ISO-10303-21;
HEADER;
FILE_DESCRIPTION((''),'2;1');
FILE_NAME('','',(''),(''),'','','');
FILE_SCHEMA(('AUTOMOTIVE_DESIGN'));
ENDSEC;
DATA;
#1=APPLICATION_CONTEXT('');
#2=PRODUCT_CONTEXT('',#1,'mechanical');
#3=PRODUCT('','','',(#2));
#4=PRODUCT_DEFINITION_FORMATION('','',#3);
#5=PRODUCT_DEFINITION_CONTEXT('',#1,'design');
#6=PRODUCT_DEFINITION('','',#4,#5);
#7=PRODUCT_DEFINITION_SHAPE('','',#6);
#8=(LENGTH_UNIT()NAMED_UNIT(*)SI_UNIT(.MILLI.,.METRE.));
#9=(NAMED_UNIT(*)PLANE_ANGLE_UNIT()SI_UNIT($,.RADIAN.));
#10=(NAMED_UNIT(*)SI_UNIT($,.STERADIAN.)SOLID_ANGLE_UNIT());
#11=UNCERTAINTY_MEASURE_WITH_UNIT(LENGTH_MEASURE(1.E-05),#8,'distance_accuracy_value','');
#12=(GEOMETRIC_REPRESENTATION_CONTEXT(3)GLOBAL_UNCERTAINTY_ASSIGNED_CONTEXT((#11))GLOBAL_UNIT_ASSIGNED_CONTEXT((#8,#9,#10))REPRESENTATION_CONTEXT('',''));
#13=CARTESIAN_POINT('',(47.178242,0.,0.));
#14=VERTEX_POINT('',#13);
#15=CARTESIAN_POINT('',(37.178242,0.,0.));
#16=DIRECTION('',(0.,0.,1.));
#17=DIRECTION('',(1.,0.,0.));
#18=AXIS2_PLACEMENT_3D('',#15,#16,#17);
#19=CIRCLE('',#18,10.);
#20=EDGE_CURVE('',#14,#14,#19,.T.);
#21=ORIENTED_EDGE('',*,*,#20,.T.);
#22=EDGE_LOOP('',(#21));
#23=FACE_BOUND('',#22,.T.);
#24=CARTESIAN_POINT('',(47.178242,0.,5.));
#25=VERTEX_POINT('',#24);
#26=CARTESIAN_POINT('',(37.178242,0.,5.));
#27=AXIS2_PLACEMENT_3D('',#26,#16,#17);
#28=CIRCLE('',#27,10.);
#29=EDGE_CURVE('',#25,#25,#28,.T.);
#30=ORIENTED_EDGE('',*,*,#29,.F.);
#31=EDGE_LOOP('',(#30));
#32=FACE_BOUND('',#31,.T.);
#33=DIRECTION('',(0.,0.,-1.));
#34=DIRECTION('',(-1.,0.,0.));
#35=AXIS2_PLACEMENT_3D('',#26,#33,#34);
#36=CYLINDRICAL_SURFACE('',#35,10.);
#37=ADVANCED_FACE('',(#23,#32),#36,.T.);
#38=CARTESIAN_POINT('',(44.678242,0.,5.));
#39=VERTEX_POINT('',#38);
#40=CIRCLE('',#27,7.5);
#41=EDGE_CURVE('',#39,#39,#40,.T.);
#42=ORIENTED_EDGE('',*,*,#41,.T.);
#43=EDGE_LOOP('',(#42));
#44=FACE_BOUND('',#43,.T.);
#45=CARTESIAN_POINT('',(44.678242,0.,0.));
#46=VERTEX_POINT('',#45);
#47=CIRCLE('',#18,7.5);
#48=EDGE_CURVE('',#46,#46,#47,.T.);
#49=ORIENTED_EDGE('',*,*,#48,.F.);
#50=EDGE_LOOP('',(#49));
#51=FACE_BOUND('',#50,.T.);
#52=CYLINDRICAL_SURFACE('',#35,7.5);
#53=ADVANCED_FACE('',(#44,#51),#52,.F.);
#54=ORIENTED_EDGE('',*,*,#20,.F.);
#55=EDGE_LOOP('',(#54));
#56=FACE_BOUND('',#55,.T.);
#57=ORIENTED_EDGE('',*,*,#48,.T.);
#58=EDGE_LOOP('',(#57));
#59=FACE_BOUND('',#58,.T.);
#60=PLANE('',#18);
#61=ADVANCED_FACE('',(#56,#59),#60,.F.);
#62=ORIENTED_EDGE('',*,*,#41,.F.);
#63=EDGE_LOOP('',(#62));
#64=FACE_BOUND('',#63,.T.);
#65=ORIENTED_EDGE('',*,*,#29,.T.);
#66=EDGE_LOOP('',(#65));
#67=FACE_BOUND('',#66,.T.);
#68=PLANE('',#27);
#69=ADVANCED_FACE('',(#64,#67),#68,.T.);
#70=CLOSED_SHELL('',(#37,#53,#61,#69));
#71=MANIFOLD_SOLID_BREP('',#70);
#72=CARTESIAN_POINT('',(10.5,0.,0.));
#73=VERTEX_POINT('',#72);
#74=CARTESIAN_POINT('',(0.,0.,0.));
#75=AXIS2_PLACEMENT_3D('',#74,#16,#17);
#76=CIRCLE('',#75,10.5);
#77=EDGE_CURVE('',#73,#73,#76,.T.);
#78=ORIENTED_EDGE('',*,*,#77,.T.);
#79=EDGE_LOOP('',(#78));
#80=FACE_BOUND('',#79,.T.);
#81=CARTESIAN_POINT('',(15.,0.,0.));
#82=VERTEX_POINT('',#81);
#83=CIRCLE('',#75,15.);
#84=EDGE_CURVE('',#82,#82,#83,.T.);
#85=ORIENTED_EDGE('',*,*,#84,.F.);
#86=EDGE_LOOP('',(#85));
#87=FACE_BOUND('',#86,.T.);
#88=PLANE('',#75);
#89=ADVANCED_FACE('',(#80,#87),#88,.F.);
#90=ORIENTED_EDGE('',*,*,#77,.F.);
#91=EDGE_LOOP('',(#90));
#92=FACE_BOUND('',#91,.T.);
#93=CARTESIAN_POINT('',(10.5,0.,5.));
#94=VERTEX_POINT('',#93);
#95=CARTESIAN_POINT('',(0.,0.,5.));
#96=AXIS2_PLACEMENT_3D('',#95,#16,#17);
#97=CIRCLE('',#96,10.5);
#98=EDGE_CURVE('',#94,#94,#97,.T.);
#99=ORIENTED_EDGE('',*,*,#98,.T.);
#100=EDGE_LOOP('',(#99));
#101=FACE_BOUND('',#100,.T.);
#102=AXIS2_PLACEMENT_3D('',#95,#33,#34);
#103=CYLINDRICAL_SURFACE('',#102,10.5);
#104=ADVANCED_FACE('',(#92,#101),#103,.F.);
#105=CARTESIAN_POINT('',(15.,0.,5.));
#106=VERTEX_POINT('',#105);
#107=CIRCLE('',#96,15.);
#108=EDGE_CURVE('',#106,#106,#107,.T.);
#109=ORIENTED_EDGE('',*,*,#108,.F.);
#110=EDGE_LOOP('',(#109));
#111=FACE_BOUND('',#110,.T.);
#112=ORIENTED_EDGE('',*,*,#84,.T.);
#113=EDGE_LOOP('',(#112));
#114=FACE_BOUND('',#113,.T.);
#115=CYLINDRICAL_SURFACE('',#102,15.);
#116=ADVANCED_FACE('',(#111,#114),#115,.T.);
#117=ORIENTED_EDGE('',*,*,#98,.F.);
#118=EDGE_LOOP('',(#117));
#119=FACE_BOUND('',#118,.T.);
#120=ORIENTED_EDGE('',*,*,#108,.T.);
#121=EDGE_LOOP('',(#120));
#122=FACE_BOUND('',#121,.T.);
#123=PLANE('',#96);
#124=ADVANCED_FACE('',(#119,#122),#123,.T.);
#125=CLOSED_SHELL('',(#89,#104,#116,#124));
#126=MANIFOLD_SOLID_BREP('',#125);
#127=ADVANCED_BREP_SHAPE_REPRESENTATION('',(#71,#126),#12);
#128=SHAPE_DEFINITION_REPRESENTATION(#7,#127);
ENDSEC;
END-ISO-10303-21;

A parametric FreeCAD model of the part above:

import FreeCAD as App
import Part
import Sketcher

V = App.Vector

doc = App.newDocument("Part")
body = doc.addObject("PartDesign::Body", "Body")

sketch1 = doc.addObject("Sketcher::SketchObject", "Sketch")
body.addObject(sketch1)
sketch1.AttachmentSupport = (doc.XY_Plane, [""])
sketch1.MapMode = "FlatFace"
sketch1.addGeometry([
    Part.Circle(V(0, 0, 0), V(0, 0, 1), 15),
    Part.Circle(V(0, 0, 0), V(0, 0, 1), 10),
], False)
sketch1.addConstraint([
    Sketcher.Constraint("Coincident", 0, 3, -1, 1),
    Sketcher.Constraint("Coincident", 1, 3, -1, 1),
    Sketcher.Constraint("Diameter", 0, 30.0),
    Sketcher.Constraint("Diameter", 1, 21.0),
])
pad1 = doc.addObject("PartDesign::Pad", "Pad")
body.addObject(pad1)
pad1.Profile = sketch1
pad1.Length = 5
body2 = doc.addObject("PartDesign::Body", "Body001")

sketch2 = doc.addObject("Sketcher::SketchObject", "Sketch001")
body2.addObject(sketch2)
sketch2.AttachmentSupport = (doc.getObject("XY_Plane001"), [""])
sketch2.MapMode = "FlatFace"
sketch2.addGeometry([
    Part.Circle(V(37, 0, 0), V(0, 0, 1), 10),
    Part.Circle(V(37, 0, 0), V(0, 0, 1), 8),
], False)
sketch2.addConstraint([
    Sketcher.Constraint("Coincident", 1, 3, 0, 3),
    Sketcher.Constraint("PointOnObject", 0, 3, -1),
    Sketcher.Constraint("Diameter", 0, 20.0),
    Sketcher.Constraint("Diameter", 1, 15.0),
    Sketcher.Constraint("DistanceX", -1, 1, 0, 3, 37.178242),
])
pad2 = doc.addObject("PartDesign::Pad", "Pad001")
body2.addObject(pad2)
pad2.Profile = sketch2
pad2.Length = 5

doc.recompute()
